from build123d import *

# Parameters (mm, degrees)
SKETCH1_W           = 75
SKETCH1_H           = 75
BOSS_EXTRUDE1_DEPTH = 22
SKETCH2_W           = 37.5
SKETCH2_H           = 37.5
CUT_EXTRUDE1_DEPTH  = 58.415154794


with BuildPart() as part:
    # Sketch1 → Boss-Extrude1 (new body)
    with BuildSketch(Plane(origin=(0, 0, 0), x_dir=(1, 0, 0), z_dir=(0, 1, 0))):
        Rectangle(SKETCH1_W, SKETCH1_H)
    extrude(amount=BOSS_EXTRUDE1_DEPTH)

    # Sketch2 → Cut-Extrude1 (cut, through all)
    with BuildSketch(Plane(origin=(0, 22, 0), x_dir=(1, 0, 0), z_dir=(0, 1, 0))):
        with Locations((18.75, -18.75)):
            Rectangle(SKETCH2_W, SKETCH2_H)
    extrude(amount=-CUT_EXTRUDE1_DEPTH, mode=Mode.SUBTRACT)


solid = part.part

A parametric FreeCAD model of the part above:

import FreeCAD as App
import Part
import Sketcher
from FreeCAD import Vector

doc = App.newDocument("Part")
body = doc.addObject("PartDesign::Body", "Body")

# Sketch on XZ plane
sketch1 = body.newObject("Sketcher::SketchObject", "Sketch")
sketch1.AttachmentSupport = (doc.getObject("XZ_Plane"), [""])
sketch1.MapMode = "FlatFace"
sketch1.addGeometry([
    Part.LineSegment(Vector(-38, -38, 0), Vector(-38, 38, 0)),
    Part.LineSegment(Vector(-38, 38, 0), Vector(38, 38, 0)),
    Part.LineSegment(Vector(38, 38, 0), Vector(38, -38, 0)),
    Part.LineSegment(Vector(38, -38, 0), Vector(-38, -38, 0)),
], False)
sketch1.addConstraint([
    Sketcher.Constraint("Coincident", 0, 2, 1, 1),
    Sketcher.Constraint("Coincident", 1, 2, 2, 1),
    Sketcher.Constraint("Coincident", 2, 2, 3, 1),
    Sketcher.Constraint("Coincident", 3, 2, 0, 1),
    Sketcher.Constraint("Vertical", 0),
    Sketcher.Constraint("Horizontal", 1),
    Sketcher.Constraint("Vertical", 2),
    Sketcher.Constraint("Horizontal", 3),
    Sketcher.Constraint("Symmetric", 0, 2, 2, 2, -1, 1),
    Sketcher.Constraint("Equal", 3, 0),
    Sketcher.Constraint("DistanceX", 1, 1, 1, 2, 75.0),
])
pad1 = body.newObject("PartDesign::Pad", "Pad")
pad1.Profile = sketch1
pad1.Length = 22
pad1.Reversed = True

# Sketch on XZ plane
sketch2 = body.newObject("Sketcher::SketchObject", "Sketch001")
sketch2.AttachmentSupport = (doc.getObject("XZ_Plane"), [""])
sketch2.MapMode = "FlatFace"
sketch2.AttachmentOffset = App.Placement(Vector(0, 0, -22), App.Rotation())
sketch2.addGeometry([
    Part.LineSegment(Vector(0, 0, 0), Vector(0, 38, 0)),
    Part.LineSegment(Vector(0, 38, 0), Vector(38, 38, 0)),
    Part.LineSegment(Vector(38, 38, 0), Vector(38, 0, 0)),
    Part.LineSegment(Vector(38, 0, 0), Vector(0, 0, 0)),
], False)
sketch2.addConstraint([
    Sketcher.Constraint("Coincident", 0, 2, 1, 1),
    Sketcher.Constraint("Coincident", 1, 2, 2, 1),
    Sketcher.Constraint("Coincident", 2, 2, 3, 1),
    Sketcher.Constraint("Coincident", 3, 2, 0, 1),
    Sketcher.Constraint("Vertical", 0),
    Sketcher.Constraint("Horizontal", 1),
    Sketcher.Constraint("Vertical", 2),
    Sketcher.Constraint("Horizontal", 3),
    Sketcher.Constraint("Coincident", 3, 2, -1, 1),
    Sketcher.Constraint("Equal", 3, 0),
    Sketcher.Constraint("DistanceX", 1, 1, 1, 2, 37.5),
])
pocket1 = body.newObject("PartDesign::Pocket", "Pocket")
pocket1.Profile = sketch2
pocket1.Type = "ThroughAll"
pocket1.Reversed = True

doc.recompute()
